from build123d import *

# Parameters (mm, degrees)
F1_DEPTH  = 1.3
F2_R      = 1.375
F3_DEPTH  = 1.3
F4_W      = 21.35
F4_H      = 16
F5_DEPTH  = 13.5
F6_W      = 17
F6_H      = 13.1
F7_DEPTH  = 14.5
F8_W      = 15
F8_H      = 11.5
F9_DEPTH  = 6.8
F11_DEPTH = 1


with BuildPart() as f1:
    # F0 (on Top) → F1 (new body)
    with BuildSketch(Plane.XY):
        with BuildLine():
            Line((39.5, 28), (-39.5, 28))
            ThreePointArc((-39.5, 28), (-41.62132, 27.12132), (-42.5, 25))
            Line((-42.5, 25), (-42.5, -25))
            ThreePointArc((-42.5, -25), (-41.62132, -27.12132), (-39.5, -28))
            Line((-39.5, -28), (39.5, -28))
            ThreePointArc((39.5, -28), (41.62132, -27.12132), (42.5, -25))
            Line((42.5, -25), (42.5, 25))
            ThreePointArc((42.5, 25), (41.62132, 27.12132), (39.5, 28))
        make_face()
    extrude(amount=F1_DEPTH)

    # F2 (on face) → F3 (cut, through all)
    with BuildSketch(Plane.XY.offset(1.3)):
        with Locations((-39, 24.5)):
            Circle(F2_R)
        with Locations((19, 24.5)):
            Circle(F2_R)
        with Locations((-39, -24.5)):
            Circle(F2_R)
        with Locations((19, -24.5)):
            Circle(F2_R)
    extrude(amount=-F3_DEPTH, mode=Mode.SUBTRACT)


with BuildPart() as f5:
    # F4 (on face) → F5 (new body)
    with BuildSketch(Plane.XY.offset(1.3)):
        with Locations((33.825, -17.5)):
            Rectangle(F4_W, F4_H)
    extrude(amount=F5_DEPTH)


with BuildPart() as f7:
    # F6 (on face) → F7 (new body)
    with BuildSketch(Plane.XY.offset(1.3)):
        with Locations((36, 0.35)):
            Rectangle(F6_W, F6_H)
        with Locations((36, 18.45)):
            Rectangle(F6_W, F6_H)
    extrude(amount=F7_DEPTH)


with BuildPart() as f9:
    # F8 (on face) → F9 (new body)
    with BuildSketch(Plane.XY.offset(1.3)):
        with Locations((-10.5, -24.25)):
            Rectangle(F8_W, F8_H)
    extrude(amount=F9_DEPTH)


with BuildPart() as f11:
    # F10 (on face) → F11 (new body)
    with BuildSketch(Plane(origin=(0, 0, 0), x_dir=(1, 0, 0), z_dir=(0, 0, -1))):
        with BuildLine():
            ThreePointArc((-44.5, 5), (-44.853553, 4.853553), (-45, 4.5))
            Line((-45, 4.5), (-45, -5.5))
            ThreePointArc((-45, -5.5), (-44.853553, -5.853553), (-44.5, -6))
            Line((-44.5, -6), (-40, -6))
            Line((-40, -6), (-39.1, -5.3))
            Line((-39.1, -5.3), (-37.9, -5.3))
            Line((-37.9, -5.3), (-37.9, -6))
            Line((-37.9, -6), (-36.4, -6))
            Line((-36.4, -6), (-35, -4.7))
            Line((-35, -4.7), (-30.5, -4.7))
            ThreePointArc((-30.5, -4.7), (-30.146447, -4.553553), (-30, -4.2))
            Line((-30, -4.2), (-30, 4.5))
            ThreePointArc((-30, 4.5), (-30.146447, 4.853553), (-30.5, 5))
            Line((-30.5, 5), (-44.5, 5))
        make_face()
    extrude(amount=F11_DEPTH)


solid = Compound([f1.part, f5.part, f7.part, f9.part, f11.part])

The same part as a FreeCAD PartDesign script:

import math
import FreeCAD as App
import Part
import Sketcher
from FreeCAD import Vector
Q = App.Units.Quantity

doc = App.newDocument("Part")
body = doc.addObject("PartDesign::Body", "Body")

# Sketch on XY plane
sketch1 = body.newObject("Sketcher::SketchObject", "Sketch")
sketch1.AttachmentSupport = (doc.getObject("XY_Plane"), [""])
sketch1.MapMode = "FlatFace"
sketch1.addGeometry(Part.LineSegment(Vector(39.5, 28, 0), Vector(-39.5, 28, 0)), False)
sketch1.addGeometry(Part.ArcOfCircle(Part.Circle(Vector(-39.5, 25, 0), Vector(0, 0, 1), 3), math.radians(90), math.radians(180)), False)
sketch1.addGeometry(Part.LineSegment(Vector(-42.5, 25, 0), Vector(-42.5, -25, 0)), False)
sketch1.addGeometry(Part.ArcOfCircle(Part.Circle(Vector(-39.5, -25, 0), Vector(0, 0, 1), 3), math.radians(-180), math.radians(-90)), False)
sketch1.addGeometry(Part.LineSegment(Vector(-39.5, -28, 0), Vector(39.5, -28, 0)), False)
sketch1.addGeometry(Part.ArcOfCircle(Part.Circle(Vector(39.5, -25, 0), Vector(0, 0, 1), 3), math.radians(-90), math.radians(0)), False)
sketch1.addGeometry(Part.LineSegment(Vector(42.5, -25, 0), Vector(42.5, 25, 0)), False)
sketch1.addGeometry(Part.ArcOfCircle(Part.Circle(Vector(39.5, 25, 0), Vector(0, 0, 1), 3), math.radians(0), math.radians(90)), False)
sketch1.addConstraint(Sketcher.Constraint("Tangent", 0, 2, 1, 1))
sketch1.addConstraint(Sketcher.Constraint("Tangent", 1, 2, 2, 1))
sketch1.addConstraint(Sketcher.Constraint("Tangent", 2, 2, 3, 1))
sketch1.addConstraint(Sketcher.Constraint("Tangent", 3, 2, 4, 1))
sketch1.addConstraint(Sketcher.Constraint("Tangent", 4, 2, 5, 1))
sketch1.addConstraint(Sketcher.Constraint("Tangent", 5, 2, 6, 1))
sketch1.addConstraint(Sketcher.Constraint("Tangent", 6, 2, 7, 1))
sketch1.addConstraint(Sketcher.Constraint("Tangent", 7, 2, 0, 1))
sketch1.addConstraint(Sketcher.Constraint("Horizontal", 0))
sketch1.addConstraint(Sketcher.Constraint("Vertical", 2))
sketch1.addConstraint(Sketcher.Constraint("Horizontal", 4))
sketch1.addConstraint(Sketcher.Constraint("Vertical", 6))
sketch1.addConstraint(Sketcher.Constraint("Equal", 1, 3))
sketch1.addConstraint(Sketcher.Constraint("Equal", 3, 5))
sketch1.addConstraint(Sketcher.Constraint("Equal", 5, 7))
sketch1.addConstraint(Sketcher.Constraint("Symmetric", 1, 3, 5, 3, -1, 1))
sketch1.addConstraint(Sketcher.Constraint("Radius", 1, Q("3.000001 mm")))
sketch1.addConstraint(Sketcher.Constraint("DistanceX", 0, 2, 0, 1, Q("79 mm")))
sketch1.addConstraint(Sketcher.Constraint("DistanceY", 2, 2, 2, 1, Q("50 mm")))
pad1 = body.newObject("PartDesign::Pad", "Pad")
pad1.Profile = sketch1
pad1.Length = 1.3

# Sketch on XY plane
sketch2 = body.newObject("Sketcher::SketchObject", "Sketch001")
sketch2.AttachmentSupport = (doc.getObject("XY_Plane"), [""])
sketch2.MapMode = "FlatFace"
sketch2.AttachmentOffset = App.Placement(Vector(0, 0, 1.3), App.Rotation())
sketch2.addGeometry(Part.Circle(Vector(-39, 24.5, 0), Vector(0, 0, 1), 1.4), False)
sketch2.addGeometry(Part.Circle(Vector(19, 24.5, 0), Vector(0, 0, 1), 1.4), False)
sketch2.addGeometry(Part.Circle(Vector(-39, -24.5, 0), Vector(0, 0, 1), 1.4), False)
sketch2.addGeometry(Part.Circle(Vector(19, -24.5, 0), Vector(0, 0, 1), 1.4), False)
sketch2.addConstraint(Sketcher.Constraint("Equal", 0, 1))
sketch2.addConstraint(Sketcher.Constraint("Equal", 1, 2))
sketch2.addConstraint(Sketcher.Constraint("Equal", 2, 3))
sketch2.addConstraint(Sketcher.Constraint("Symmetric", 0, 3, 2, 3, -1))
sketch2.addConstraint(Sketcher.Constraint("Symmetric", 1, 3, 3, 3, -1))
sketch2.addConstraint(Sketcher.Constraint("Horizontal", 0, 3, 1, 3))
sketch2.addConstraint(Sketcher.Constraint("Diameter", 0, Q("2.75 mm")))
sketch2.addConstraint(Sketcher.Constraint("DistanceX", 0, 3, -1, 1, Q("39 mm")))
sketch2.addConstraint(Sketcher.Constraint("DistanceX", -1, 1, 1, 3, Q("19 mm")))
sketch2.addConstraint(Sketcher.Constraint("DistanceY", 2, 3, 0, 3, Q("49 mm")))
pocket1 = body.newObject("PartDesign::Pocket", "Pocket")
pocket1.Profile = sketch2
pocket1.Type = "ThroughAll"
body2 = doc.addObject("PartDesign::Body", "Body001")

# Sketch on XY plane
sketch3 = body2.newObject("Sketcher::SketchObject", "Sketch002")
sketch3.AttachmentSupport = (doc.getObject("XY_Plane001"), [""])
sketch3.MapMode = "FlatFace"
sketch3.AttachmentOffset = App.Placement(Vector(0, 0, 1.3), App.Rotation())
sketch3.addGeometry(Part.LineSegment(Vector(23, -10, 0), Vector(23, -26, 0)), False)
sketch3.addGeometry(Part.LineSegment(Vector(23, -26, 0), Vector(44, -26, 0)), False)
sketch3.addGeometry(Part.LineSegment(Vector(44, -26, 0), Vector(44, -10, 0)), False)
sketch3.addGeometry(Part.LineSegment(Vector(44, -10, 0), Vector(23, -10, 0)), False)
sketch3.addConstraint(Sketcher.Constraint("Coincident", 0, 2, 1, 1))
sketch3.addConstraint(Sketcher.Constraint("Coincident", 1, 2, 2, 1))
sketch3.addConstraint(Sketcher.Constraint("Coincident", 2, 2, 3, 1))
sketch3.addConstraint(Sketcher.Constraint("Coincident", 3, 2, 0, 1))
sketch3.addConstraint(Sketcher.Constraint("Vertical", 0))
sketch3.addConstraint(Sketcher.Constraint("Horizontal", 1))
sketch3.addConstraint(Sketcher.Constraint("Vertical", 2))
sketch3.addConstraint(Sketcher.Constraint("Horizontal", 3))
sketch3.addConstraint(Sketcher.Constraint("DistanceY", 0, 2, 0, 1, Q("16 mm")))
sketch3.addConstraint(Sketcher.Constraint("DistanceX", 1, 1, 1, 2, Q("21.35 mm")))
sketch3.addConstraint(Sketcher.Constraint("DistanceY", 0, 2, -1, 1, Q("25.5 mm")))
sketch3.addConstraint(Sketcher.Constraint("DistanceX", -1, 1, 1, 2, Q("44.5 mm")))
pad2 = body2.newObject("PartDesign::Pad", "Pad001")
pad2.Profile = sketch3
pad2.Length = 13.5
body3 = doc.addObject("PartDesign::Body", "Body002")
body3.AllowCompound = True

# Sketch on XY plane
sketch4 = body3.newObject("Sketcher::SketchObject", "Sketch003")
sketch4.AttachmentSupport = (doc.getObject("XY_Plane002"), [""])
sketch4.MapMode = "FlatFace"
sketch4.AttachmentOffset = App.Placement(Vector(0, 0, 1.3), App.Rotation())
sketch4.addGeometry(Part.LineSegment(Vector(28, 7, 0), Vector(28, -6, 0)), False)
sketch4.addGeometry(Part.LineSegment(Vector(28, -6, 0), Vector(44, -6, 0)), False)
sketch4.addGeometry(Part.LineSegment(Vector(44, -6, 0), Vector(44, 7, 0)), False)
sketch4.addGeometry(Part.LineSegment(Vector(44, 7, 0), Vector(28, 7, 0)), False)
sketch4.addGeometry(Part.LineSegment(Vector(28, 25, 0), Vector(28, 12, 0)), False)
sketch4.addGeometry(Part.LineSegment(Vector(28, 12, 0), Vector(44, 12, 0)), False)
sketch4.addGeometry(Part.LineSegment(Vector(44, 12, 0), Vector(44, 25, 0)), False)
sketch4.addGeometry(Part.LineSegment(Vector(44, 25, 0), Vector(28, 25, 0)), False)
sketch4.addConstraint(Sketcher.Constraint("Coincident", 0, 2, 1, 1))
sketch4.addConstraint(Sketcher.Constraint("Coincident", 1, 2, 2, 1))
sketch4.addConstraint(Sketcher.Constraint("Coincident", 2, 2, 3, 1))
sketch4.addConstraint(Sketcher.Constraint("Coincident", 3, 2, 0, 1))
sketch4.addConstraint(Sketcher.Constraint("Coincident", 4, 2, 5, 1))
sketch4.addConstraint(Sketcher.Constraint("Coincident", 5, 2, 6, 1))
sketch4.addConstraint(Sketcher.Constraint("Coincident", 6, 2, 7, 1))
sketch4.addConstraint(Sketcher.Constraint("Coincident", 7, 2, 4, 1))
sketch4.addConstraint(Sketcher.Constraint("Vertical", 0))
sketch4.addConstraint(Sketcher.Constraint("Horizontal", 1))
sketch4.addConstraint(Sketcher.Constraint("Vertical", 2))
sketch4.addConstraint(Sketcher.Constraint("Horizontal", 3))
sketch4.addConstraint(Sketcher.Constraint("Vertical", 4))
sketch4.addConstraint(Sketcher.Constraint("Horizontal", 5))
sketch4.addConstraint(Sketcher.Constraint("Vertical", 6))
sketch4.addConstraint(Sketcher.Constraint("Horizontal", 7))
sketch4.addConstraint(Sketcher.Constraint("Vertical", 3, 2, 4, 2))
sketch4.addConstraint(Sketcher.Constraint("Vertical", 2, 2, 5, 2))
sketch4.addConstraint(Sketcher.Constraint("Equal", 2, 4))
sketch4.addConstraint(Sketcher.Constraint("DistanceX", 1, 1, 1, 2, Q("17 mm")))
sketch4.addConstraint(Sketcher.Constraint("DistanceY", 0, 2, 0, 1, Q("13.1 mm")))
sketch4.addConstraint(Sketcher.Constraint("DistanceY", -1, 1, 6, 2, Q("25 mm")))
sketch4.addConstraint(Sketcher.Constraint("DistanceY", 3, 2, 4, 2, Q("5 mm")))
sketch4.addConstraint(Sketcher.Constraint("DistanceX", -1, 1, 0, 2, Q("27.5 mm")))
pad3 = body3.newObject("PartDesign::Pad", "Pad002")
pad3.Profile = sketch4
pad3.Length = 14.5
body4 = doc.addObject("PartDesign::Body", "Body003")

# Sketch on XY plane
sketch5 = body4.newObject("Sketcher::SketchObject", "Sketch004")
sketch5.AttachmentSupport = (doc.getObject("XY_Plane003"), [""])
sketch5.MapMode = "FlatFace"
sketch5.AttachmentOffset = App.Placement(Vector(0, 0, 1.3), App.Rotation())
sketch5.addGeometry(Part.LineSegment(Vector(-18, -18, 0), Vector(-18, -30, 0)), False)
sketch5.addGeometry(Part.LineSegment(Vector(-18, -30, 0), Vector(-3, -30, 0)), False)
sketch5.addGeometry(Part.LineSegment(Vector(-3, -30, 0), Vector(-3, -18, 0)), False)
sketch5.addGeometry(Part.LineSegment(Vector(-3, -18, 0), Vector(-18, -18, 0)), False)
sketch5.addConstraint(Sketcher.Constraint("Coincident", 0, 2, 1, 1))
sketch5.addConstraint(Sketcher.Constraint("Coincident", 1, 2, 2, 1))
sketch5.addConstraint(Sketcher.Constraint("Coincident", 2, 2, 3, 1))
sketch5.addConstraint(Sketcher.Constraint("Coincident", 3, 2, 0, 1))
sketch5.addConstraint(Sketcher.Constraint("Vertical", 0))
sketch5.addConstraint(Sketcher.Constraint("Horizontal", 1))
sketch5.addConstraint(Sketcher.Constraint("Vertical", 2))
sketch5.addConstraint(Sketcher.Constraint("Horizontal", 3))
sketch5.addConstraint(Sketcher.Constraint("DistanceX", 1, 1, 1, 2, Q("15 mm")))
sketch5.addConstraint(Sketcher.Constraint("DistanceY", 0, 2, 0, 1, Q("11.5 mm")))
sketch5.addConstraint(Sketcher.Constraint("DistanceX", 0, 2, -1, 1, Q("18 mm")))
sketch5.addConstraint(Sketcher.Constraint("DistanceY", 0, 2, -1, 1, Q("30 mm")))
pad4 = body4.newObject("PartDesign::Pad", "Pad003")
pad4.Profile = sketch5
pad4.Length = 6.8
body5 = doc.addObject("PartDesign::Body", "Body004")

# Sketch on XY plane
sketch6 = body5.newObject("Sketcher::SketchObject", "Sketch005")
sketch6.AttachmentSupport = (doc.getObject("XY_Plane004"), [""])
sketch6.MapMode = "FlatFace"
sketch6.addGeometry(Part.ArcOfCircle(Part.Circle(Vector(-44.5, -4.5, 0), Vector(0, 0, 1), 0.5), math.radians(-180), math.radians(-90)), False)
sketch6.addGeometry(Part.LineSegment(Vector(-45, -4.5, 0), Vector(-45, 5.5, 0)), False)
sketch6.addGeometry(Part.ArcOfCircle(Part.Circle(Vector(-44.5, 5.5, 0), Vector(0, 0, 1), 0.5), math.radians(90), math.radians(180)), False)
sketch6.addGeometry(Part.LineSegment(Vector(-44.5, 6, 0), Vector(-40, 6, 0)), False)
sketch6.addGeometry(Part.LineSegment(Vector(-40, 6, 0), Vector(-39.1, 5.3, 0)), False)
sketch6.addGeometry(Part.LineSegment(Vector(-39.1, 5.3, 0), Vector(-37.9, 5.3, 0)), False)
sketch6.addGeometry(Part.LineSegment(Vector(-37.9, 5.3, 0), Vector(-37.9, 6, 0)), False)
sketch6.addGeometry(Part.LineSegment(Vector(-37.9, 6, 0), Vector(-36.4, 6, 0)), False)
sketch6.addGeometry(Part.LineSegment(Vector(-36.4, 6, 0), Vector(-35, 4.7, 0)), False)
sketch6.addGeometry(Part.LineSegment(Vector(-35, 4.7, 0), Vector(-30.5, 4.7, 0)), False)
sketch6.addGeometry(Part.ArcOfCircle(Part.Circle(Vector(-30.5, 4.2, 0), Vector(0, 0, 1), 0.5), math.radians(0), math.radians(90)), False)
sketch6.addGeometry(Part.LineSegment(Vector(-30, 4.2, 0), Vector(-30, -4.5, 0)), False)
sketch6.addGeometry(Part.ArcOfCircle(Part.Circle(Vector(-30.5, -4.5, 0), Vector(0, 0, 1), 0.5), math.radians(-90), math.radians(0)), False)
sketch6.addGeometry(Part.LineSegment(Vector(-30.5, -5, 0), Vector(-44.5, -5, 0)), False)
sketch6.addConstraint(Sketcher.Constraint("Coincident", 0, 1, 1, 1))
sketch6.addConstraint(Sketcher.Constraint("Coincident", 1, 2, 2, 2))
sketch6.addConstraint(Sketcher.Constraint("Coincident", 2, 1, 3, 1))
sketch6.addConstraint(Sketcher.Constraint("Coincident", 3, 2, 4, 1))
sketch6.addConstraint(Sketcher.Constraint("Coincident", 4, 2, 5, 1))
sketch6.addConstraint(Sketcher.Constraint("Coincident", 5, 2, 6, 1))
sketch6.addConstraint(Sketcher.Constraint("Coincident", 6, 2, 7, 1))
sketch6.addConstraint(Sketcher.Constraint("Coincident", 7, 2, 8, 1))
sketch6.addConstraint(Sketcher.Constraint("Coincident", 8, 2, 9, 1))
sketch6.addConstraint(Sketcher.Constraint("Coincident", 9, 2, 10, 2))
sketch6.addConstraint(Sketcher.Constraint("Coincident", 10, 1, 11, 1))
sketch6.addConstraint(Sketcher.Constraint("Coincident", 11, 2, 12, 2))
sketch6.addConstraint(Sketcher.Constraint("Coincident", 12, 1, 13, 1))
sketch6.addConstraint(Sketcher.Constraint("Coincident", 13, 2, 0, 2))
sketch6.addConstraint(Sketcher.Constraint("Vertical", 1))
sketch6.addConstraint(Sketcher.Constraint("Horizontal", 3))
sketch6.addConstraint(Sketcher.Constraint("Horizontal", 5))
sketch6.addConstraint(Sketcher.Constraint("Vertical", 6))
sketch6.addConstraint(Sketcher.Constraint("Horizontal", 7))
sketch6.addConstraint(Sketcher.Constraint("Horizontal", 9))
sketch6.addConstraint(Sketcher.Constraint("Vertical", 11))
sketch6.addConstraint(Sketcher.Constraint("Horizontal", 13))
sketch6.addConstraint(Sketcher.Constraint("Equal", 0, 2))
sketch6.addConstraint(Sketcher.Constraint("Equal", 2, 10))
sketch6.addConstraint(Sketcher.Constraint("Equal", 10, 12))
sketch6.addConstraint(Sketcher.Constraint("Horizontal", 12, 3, 0, 1))
sketch6.addConstraint(Sketcher.Constraint("Horizontal", 2, 3, 1, 2))
sketch6.addConstraint(Sketcher.Constraint("Horizontal", 3, 2, 6, 2))
sketch6.addConstraint(Sketcher.Constraint("Horizontal", 0, 1, 11, 2))
sketch6.addConstraint(Sketcher.Constraint("Vertical", 0, 3, 2, 1))
sketch6.addConstraint(Sketcher.Constraint("Vertical", 12, 3, 9, 2))
sketch6.addConstraint(Sketcher.Constraint("Vertical", 9, 2, 12, 1))
sketch6.addConstraint(Sketcher.Constraint("Vertical", 2, 1, 13, 2))
sketch6.addConstraint(Sketcher.Constraint("Equal", 3, 9))
sketch6.addConstraint(Sketcher.Constraint("Radius", 0, Q("0.500001 mm")))
sketch6.addConstraint(Sketcher.Constraint("DistanceX", 13, 2, 13, 1, Q("14 mm")))
sketch6.addConstraint(Sketcher.Constraint("DistanceY", 1, 1, 1, 2, Q("10 mm")))
sketch6.addConstraint(Sketcher.Constraint("DistanceX", 3, 1, 3, 2, Q("4.5 mm")))
sketch6.addConstraint(Sketcher.Constraint("DistanceX", 5, 1, 5, 2, Q("1.2 mm")))
sketch6.addConstraint(Sketcher.Constraint("DistanceX", 7, 1, 7, 2, Q("1.5 mm")))
sketch6.addConstraint(Sketcher.Constraint("DistanceY", 6, 1, 6, 2, Q("0.7 mm")))
sketch6.addConstraint(Sketcher.Constraint("DistanceY", 11, 2, 11, 1, Q("8.7 mm")))
sketch6.addConstraint(Sketcher.Constraint("DistanceX", 0, 1, -1, 1, Q("45 mm")))
sketch6.addConstraint(Sketcher.Constraint("DistanceY", -1, 1, 2, 1, Q("6 mm")))
sketch6.addConstraint(Sketcher.Constraint("DistanceY", -1, 1, 10, 3, Q("4.199999 mm")))
sketch6.addConstraint(Sketcher.Constraint("DistanceX", 4, 2, -1, 1, Q("39.1 mm")))
pad5 = body5.newObject("PartDesign::Pad", "Pad004")
pad5.Profile = sketch6
pad5.Length = 1
pad5.Reversed = True

doc.recompute()
